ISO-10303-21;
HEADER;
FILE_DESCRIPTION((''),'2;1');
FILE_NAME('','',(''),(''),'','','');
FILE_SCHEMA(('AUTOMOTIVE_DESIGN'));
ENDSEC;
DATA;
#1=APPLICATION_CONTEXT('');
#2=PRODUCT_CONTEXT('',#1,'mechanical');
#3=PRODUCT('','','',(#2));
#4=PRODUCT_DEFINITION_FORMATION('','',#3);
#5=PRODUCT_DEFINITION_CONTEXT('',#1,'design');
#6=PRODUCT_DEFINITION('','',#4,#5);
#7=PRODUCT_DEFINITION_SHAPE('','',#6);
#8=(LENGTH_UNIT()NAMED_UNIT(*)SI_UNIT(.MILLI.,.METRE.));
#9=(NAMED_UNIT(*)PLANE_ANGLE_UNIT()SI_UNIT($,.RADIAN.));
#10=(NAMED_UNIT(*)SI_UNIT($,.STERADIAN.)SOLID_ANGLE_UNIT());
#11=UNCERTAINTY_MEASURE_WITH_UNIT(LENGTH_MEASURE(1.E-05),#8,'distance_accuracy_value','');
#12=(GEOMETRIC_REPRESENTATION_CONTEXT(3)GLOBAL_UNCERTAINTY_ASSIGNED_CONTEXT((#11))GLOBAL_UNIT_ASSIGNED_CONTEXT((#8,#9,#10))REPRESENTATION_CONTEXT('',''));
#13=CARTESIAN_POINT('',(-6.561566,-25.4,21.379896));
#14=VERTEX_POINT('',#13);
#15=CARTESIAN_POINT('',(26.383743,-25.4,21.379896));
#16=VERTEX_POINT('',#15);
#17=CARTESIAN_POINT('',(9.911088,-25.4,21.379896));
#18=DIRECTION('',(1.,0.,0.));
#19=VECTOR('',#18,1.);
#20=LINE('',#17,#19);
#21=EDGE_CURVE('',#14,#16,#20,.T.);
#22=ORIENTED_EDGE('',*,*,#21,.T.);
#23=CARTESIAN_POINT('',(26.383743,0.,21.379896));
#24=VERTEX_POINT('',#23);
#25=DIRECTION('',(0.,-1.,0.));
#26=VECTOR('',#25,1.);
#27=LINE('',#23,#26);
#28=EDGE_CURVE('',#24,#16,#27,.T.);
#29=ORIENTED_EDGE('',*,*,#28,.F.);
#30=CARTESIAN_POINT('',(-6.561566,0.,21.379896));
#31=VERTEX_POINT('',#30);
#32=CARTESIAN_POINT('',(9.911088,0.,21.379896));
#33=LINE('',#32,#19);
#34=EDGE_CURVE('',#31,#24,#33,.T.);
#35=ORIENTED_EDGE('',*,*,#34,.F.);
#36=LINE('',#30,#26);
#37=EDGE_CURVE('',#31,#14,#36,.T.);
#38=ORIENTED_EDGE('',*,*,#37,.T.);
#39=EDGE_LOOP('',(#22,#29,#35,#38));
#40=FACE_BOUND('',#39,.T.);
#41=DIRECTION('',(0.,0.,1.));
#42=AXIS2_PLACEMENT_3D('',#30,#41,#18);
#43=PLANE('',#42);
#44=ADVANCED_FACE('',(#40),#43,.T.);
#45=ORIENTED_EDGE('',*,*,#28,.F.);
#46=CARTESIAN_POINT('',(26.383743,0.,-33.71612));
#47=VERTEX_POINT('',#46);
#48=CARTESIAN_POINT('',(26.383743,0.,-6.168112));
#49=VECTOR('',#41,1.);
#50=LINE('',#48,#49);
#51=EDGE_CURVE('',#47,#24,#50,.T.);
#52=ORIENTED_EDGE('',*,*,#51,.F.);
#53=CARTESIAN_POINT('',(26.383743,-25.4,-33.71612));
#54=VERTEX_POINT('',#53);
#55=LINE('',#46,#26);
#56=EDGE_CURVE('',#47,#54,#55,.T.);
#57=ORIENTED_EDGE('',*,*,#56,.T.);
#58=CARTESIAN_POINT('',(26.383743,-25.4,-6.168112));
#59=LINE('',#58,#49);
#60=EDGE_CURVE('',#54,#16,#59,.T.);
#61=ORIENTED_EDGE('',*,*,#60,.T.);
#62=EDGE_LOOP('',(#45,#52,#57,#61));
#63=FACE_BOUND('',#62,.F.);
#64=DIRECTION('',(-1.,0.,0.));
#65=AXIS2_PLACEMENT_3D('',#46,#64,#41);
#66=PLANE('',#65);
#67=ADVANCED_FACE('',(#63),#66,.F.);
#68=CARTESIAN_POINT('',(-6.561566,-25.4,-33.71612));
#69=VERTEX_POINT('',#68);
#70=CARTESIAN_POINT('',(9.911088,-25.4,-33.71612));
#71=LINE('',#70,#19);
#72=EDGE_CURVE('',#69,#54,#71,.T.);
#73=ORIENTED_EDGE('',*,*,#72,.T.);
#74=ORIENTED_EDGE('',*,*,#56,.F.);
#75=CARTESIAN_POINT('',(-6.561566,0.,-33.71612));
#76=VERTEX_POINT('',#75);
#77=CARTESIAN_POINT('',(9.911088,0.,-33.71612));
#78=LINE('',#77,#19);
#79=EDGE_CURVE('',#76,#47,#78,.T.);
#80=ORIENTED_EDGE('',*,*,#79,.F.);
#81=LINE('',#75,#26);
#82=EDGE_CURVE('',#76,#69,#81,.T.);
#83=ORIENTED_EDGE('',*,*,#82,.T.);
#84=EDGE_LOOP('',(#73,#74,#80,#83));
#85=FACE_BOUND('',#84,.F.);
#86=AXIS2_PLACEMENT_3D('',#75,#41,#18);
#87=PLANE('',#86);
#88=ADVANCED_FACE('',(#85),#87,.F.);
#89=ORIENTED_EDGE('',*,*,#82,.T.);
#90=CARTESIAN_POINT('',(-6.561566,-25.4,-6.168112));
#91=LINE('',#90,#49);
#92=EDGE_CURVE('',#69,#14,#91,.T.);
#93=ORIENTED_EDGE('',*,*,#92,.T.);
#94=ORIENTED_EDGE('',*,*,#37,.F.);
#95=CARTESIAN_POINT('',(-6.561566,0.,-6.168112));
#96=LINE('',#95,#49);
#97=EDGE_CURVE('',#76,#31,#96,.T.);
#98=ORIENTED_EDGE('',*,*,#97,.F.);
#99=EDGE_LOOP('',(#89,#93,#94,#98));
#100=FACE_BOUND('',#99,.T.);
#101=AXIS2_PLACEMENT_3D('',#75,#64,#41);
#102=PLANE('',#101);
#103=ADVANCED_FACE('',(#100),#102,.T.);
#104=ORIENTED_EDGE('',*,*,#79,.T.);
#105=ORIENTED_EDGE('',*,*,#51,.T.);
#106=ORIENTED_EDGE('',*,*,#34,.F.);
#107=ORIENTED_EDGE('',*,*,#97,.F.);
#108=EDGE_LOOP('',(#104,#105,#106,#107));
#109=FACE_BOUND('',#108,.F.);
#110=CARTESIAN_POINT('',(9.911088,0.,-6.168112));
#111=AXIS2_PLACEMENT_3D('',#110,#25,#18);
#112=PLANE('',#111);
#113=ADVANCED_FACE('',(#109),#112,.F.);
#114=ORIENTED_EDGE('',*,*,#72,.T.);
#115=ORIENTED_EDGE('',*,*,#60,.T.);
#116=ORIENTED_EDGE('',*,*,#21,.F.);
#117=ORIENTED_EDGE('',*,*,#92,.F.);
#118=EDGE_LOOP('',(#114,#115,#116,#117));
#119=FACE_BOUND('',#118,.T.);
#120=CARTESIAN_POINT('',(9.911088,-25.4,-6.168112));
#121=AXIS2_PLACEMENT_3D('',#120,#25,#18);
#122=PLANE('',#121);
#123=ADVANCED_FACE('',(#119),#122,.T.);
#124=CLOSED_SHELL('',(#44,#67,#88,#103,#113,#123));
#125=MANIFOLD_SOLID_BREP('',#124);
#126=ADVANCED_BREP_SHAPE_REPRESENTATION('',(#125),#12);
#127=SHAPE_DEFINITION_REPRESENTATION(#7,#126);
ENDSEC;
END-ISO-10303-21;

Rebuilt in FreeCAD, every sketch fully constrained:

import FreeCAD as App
import Part
import Sketcher
from FreeCAD import Vector
Q = App.Units.Quantity

doc = App.newDocument("Part")
body = doc.addObject("PartDesign::Body", "Body")

# Sketch on XZ plane
sketch1 = body.newObject("Sketcher::SketchObject", "Sketch")
sketch1.AttachmentSupport = (doc.getObject("XZ_Plane"), [""])
sketch1.MapMode = "FlatFace"
sketch1.addGeometry(Part.LineSegment(Vector(-6.561566, 21.379896, 0), Vector(-6.561566, -33.71612, 0)), False)
sketch1.addGeometry(Part.LineSegment(Vector(-6.561566, -33.71612, 0), Vector(26.383743, -33.71612, 0)), False)
sketch1.addGeometry(Part.LineSegment(Vector(26.383743, -33.71612, 0), Vector(26.383743, 21.379896, 0)), False)
sketch1.addGeometry(Part.LineSegment(Vector(26.383743, 21.379896, 0), Vector(-6.561566, 21.379896, 0)), False)
sketch1.addConstraint(Sketcher.Constraint("Coincident", 0, 2, 1, 1))
sketch1.addConstraint(Sketcher.Constraint("Coincident", 1, 2, 2, 1))
sketch1.addConstraint(Sketcher.Constraint("Coincident", 2, 2, 3, 1))
sketch1.addConstraint(Sketcher.Constraint("Coincident", 3, 2, 0, 1))
sketch1.addConstraint(Sketcher.Constraint("Vertical", 0))
sketch1.addConstraint(Sketcher.Constraint("Horizontal", 1))
sketch1.addConstraint(Sketcher.Constraint("Vertical", 2))
sketch1.addConstraint(Sketcher.Constraint("Horizontal", 3))
sketch1.addConstraint(Sketcher.Constraint("DistanceX", 1, 1, 1, 2, 32.945309))
sketch1.addConstraint(Sketcher.Constraint("DistanceY", 0, 2, 0, 1, 55.096016))
sketch1.addConstraint(Sketcher.Constraint("DistanceY", 0, 2, -1, 1, 33.71612))
sketch1.addConstraint(Sketcher.Constraint("DistanceX", 0, 2, -1, 1, 6.561566))
pad1 = body.newObject("PartDesign::Pad", "Pad")
pad1.Profile = sketch1
pad1.Length = Q("1 in")

# Sketch on XZ plane
sketch2 = body.newObject("Sketcher::SketchObject", "Sketch001")
sketch2.AttachmentSupport = (doc.getObject("XZ_Plane"), [""])
sketch2.MapMode = "FlatFace"
sketch2.addGeometry(Part.LineSegment(Vector(-6.561566, 21.379896, 0), Vector(-6.561566, -33.71612, 0)), False)
sketch2.addGeometry(Part.LineSegment(Vector(-6.561566, -33.71612, 0), Vector(26.383743, -33.71612, 0)), False)
sketch2.addGeometry(Part.LineSegment(Vector(26.383743, -33.71612, 0), Vector(26.383743, 21.379896, 0)), False)
sketch2.addGeometry(Part.LineSegment(Vector(26.383743, 21.379896, 0), Vector(-6.561566, 21.379896, 0)), False)
sketch2.addConstraint(Sketcher.Constraint("Coincident", 0, 2, 1, 1))
sketch2.addConstraint(Sketcher.Constraint("Coincident", 1, 2, 2, 1))
sketch2.addConstraint(Sketcher.Constraint("Coincident", 2, 2, 3, 1))
sketch2.addConstraint(Sketcher.Constraint("Coincident", 3, 2, 0, 1))
sketch2.addConstraint(Sketcher.Constraint("Vertical", 0))
sketch2.addConstraint(Sketcher.Constraint("Horizontal", 1))
sketch2.addConstraint(Sketcher.Constraint("Vertical", 2))
sketch2.addConstraint(Sketcher.Constraint("Horizontal", 3))
sketch2.addConstraint(Sketcher.Constraint("DistanceX", 1, 1, 1, 2, 32.945309))
sketch2.addConstraint(Sketcher.Constraint("DistanceY", 0, 2, 0, 1, 55.096016))
sketch2.addConstraint(Sketcher.Constraint("DistanceY", 0, 2, -1, 1, 33.71612))
sketch2.addConstraint(Sketcher.Constraint("DistanceX", 0, 2, -1, 1, 6.561566))
pad2 = body.newObject("PartDesign::Pad", "Pad001")
pad2.Profile = sketch2
pad2.Length = Q("1 in")

doc.recompute()
